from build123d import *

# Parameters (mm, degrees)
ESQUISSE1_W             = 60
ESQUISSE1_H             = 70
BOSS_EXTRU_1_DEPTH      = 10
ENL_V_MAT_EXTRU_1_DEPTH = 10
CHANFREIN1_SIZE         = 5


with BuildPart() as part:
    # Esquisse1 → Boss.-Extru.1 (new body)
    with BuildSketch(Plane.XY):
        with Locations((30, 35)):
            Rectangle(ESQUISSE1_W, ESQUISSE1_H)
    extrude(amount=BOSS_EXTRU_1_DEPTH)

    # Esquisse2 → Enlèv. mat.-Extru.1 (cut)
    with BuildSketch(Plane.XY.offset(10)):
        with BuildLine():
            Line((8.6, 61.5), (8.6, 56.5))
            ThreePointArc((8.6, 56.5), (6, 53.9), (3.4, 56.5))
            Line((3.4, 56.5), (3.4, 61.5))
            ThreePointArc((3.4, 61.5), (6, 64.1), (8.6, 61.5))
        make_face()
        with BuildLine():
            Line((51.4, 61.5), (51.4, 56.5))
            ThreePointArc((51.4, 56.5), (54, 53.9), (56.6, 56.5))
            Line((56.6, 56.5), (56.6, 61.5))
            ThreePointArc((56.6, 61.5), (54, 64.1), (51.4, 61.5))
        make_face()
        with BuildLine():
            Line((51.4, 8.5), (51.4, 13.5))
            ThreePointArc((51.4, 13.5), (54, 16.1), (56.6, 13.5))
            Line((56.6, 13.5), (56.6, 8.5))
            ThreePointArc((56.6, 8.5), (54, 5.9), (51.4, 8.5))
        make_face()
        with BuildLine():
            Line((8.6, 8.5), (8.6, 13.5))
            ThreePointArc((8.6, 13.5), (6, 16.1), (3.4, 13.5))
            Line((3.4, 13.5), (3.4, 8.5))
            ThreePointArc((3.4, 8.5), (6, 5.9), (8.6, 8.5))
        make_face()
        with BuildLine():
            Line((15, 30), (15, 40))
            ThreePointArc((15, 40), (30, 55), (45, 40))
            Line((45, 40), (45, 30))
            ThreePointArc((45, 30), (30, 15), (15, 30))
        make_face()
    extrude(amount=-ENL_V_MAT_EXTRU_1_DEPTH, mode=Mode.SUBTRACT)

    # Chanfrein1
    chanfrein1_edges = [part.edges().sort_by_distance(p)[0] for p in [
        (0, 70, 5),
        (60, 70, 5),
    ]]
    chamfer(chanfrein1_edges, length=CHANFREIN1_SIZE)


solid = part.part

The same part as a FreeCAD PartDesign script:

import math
import FreeCAD as App
import Part
import Sketcher
from FreeCAD import Vector


def edges_at(feature, points):
    """Names of the edges that pass closest to the given points."""
    edges = feature.Shape.Edges
    near = lambda p: min(range(len(edges)), key=lambda i: edges[i].distToShape(Part.Vertex(*p))[0])
    return sorted({f"Edge{near(p) + 1}" for p in points})

doc = App.newDocument("Part")
body = doc.addObject("PartDesign::Body", "Body")

# Sketch on XY plane
sketch1 = doc.addObject("Sketcher::SketchObject", "Sketch")
body.addObject(sketch1)
sketch1.AttachmentSupport = (doc.XY_Plane, [""])
sketch1.MapMode = "FlatFace"
sketch1.addGeometry([
    Part.LineSegment(Vector(0, 70, 0), Vector(0, 0, 0)),
    Part.LineSegment(Vector(0, 0, 0), Vector(60, 0, 0)),
    Part.LineSegment(Vector(60, 0, 0), Vector(60, 70, 0)),
    Part.LineSegment(Vector(60, 70, 0), Vector(0, 70, 0)),
], False)
sketch1.addConstraint([
    Sketcher.Constraint("Coincident", 0, 2, 1, 1),
    Sketcher.Constraint("Coincident", 1, 2, 2, 1),
    Sketcher.Constraint("Coincident", 2, 2, 3, 1),
    Sketcher.Constraint("Coincident", 3, 2, 0, 1),
    Sketcher.Constraint("Vertical", 0),
    Sketcher.Constraint("Horizontal", 1),
    Sketcher.Constraint("Vertical", 2),
    Sketcher.Constraint("Horizontal", 3),
    Sketcher.Constraint("Coincident", 0, 2, -1, 1),
    Sketcher.Constraint("DistanceX", 1, 1, 1, 2, 60.0),
    Sketcher.Constraint("DistanceY", 0, 2, 0, 1, 70.0),
])
pad1 = doc.addObject("PartDesign::Pad", "Pad")
body.addObject(pad1)
pad1.Profile = sketch1
pad1.Length = 10

# Sketch on XY plane
sketch2 = doc.addObject("Sketcher::SketchObject", "Sketch001")
body.addObject(sketch2)
sketch2.AttachmentSupport = (doc.XY_Plane, [""])
sketch2.MapMode = "FlatFace"
sketch2.AttachmentOffset = App.Placement(Vector(0, 0, 10), App.Rotation())
sketch2.addGeometry([
    Part.LineSegment(Vector(8.6, 56.5, 0), Vector(8.6, 61.5, 0)),  # 0
    Part.ArcOfCircle(Part.Circle(Vector(6, 61.5, 0), Vector(0, 0, 1), 2.6), math.radians(0), math.radians(180)),  # 1
    Part.LineSegment(Vector(3.4, 61.5, 0), Vector(3.4, 56.5, 0)),  # 2
    Part.ArcOfCircle(Part.Circle(Vector(6, 56.5, 0), Vector(0, 0, 1), 2.6), math.radians(180), math.radians(360)),  # 3
    Part.LineSegment(Vector(51.4, 61.5, 0), Vector(51.4, 56.5, 0)),  # 4
    Part.ArcOfCircle(Part.Circle(Vector(54, 56.5, 0), Vector(0, 0, 1), 2.6), math.radians(180), math.radians(360)),  # 5
    Part.LineSegment(Vector(56.6, 56.5, 0), Vector(56.6, 61.5, 0)),  # 6
    Part.ArcOfCircle(Part.Circle(Vector(54, 61.5, 0), Vector(0, 0, 1), 2.6), math.radians(0), math.radians(180)),  # 7
    Part.LineSegment(Vector(51.4, 13.5, 0), Vector(51.4, 8.5, 0)),  # 8
    Part.ArcOfCircle(Part.Circle(Vector(54, 8.5, 0), Vector(0, 0, 1), 2.6), math.radians(180), math.radians(360)),  # 9
    Part.LineSegment(Vector(56.6, 8.5, 0), Vector(56.6, 13.5, 0)),  # 10
    Part.ArcOfCircle(Part.Circle(Vector(54, 13.5, 0), Vector(0, 0, 1), 2.6), math.radians(0), math.radians(180)),  # 11
    Part.LineSegment(Vector(8.6, 8.5, 0), Vector(8.6, 13.5, 0)),  # 12
    Part.ArcOfCircle(Part.Circle(Vector(6, 13.5, 0), Vector(0, 0, 1), 2.6), math.radians(0), math.radians(180)),  # 13
    Part.LineSegment(Vector(3.4, 13.5, 0), Vector(3.4, 8.5, 0)),  # 14
    Part.ArcOfCircle(Part.Circle(Vector(6, 8.5, 0), Vector(0, 0, 1), 2.6), math.radians(180), math.radians(360)),  # 15
    Part.LineSegment(Vector(15, 40, 0), Vector(15, 30, 0)),  # 16
    Part.ArcOfCircle(Part.Circle(Vector(30, 30, 0), Vector(0, 0, 1), 15), math.radians(180), math.radians(360)),  # 17
    Part.LineSegment(Vector(45, 30, 0), Vector(45, 40, 0)),  # 18
    Part.ArcOfCircle(Part.Circle(Vector(30, 40, 0), Vector(0, 0, 1), 15), math.radians(0), math.radians(180)),  # 19
], False)
sketch2.addConstraint([
    Sketcher.Constraint("Tangent", 0, 2, 1, 1),
    Sketcher.Constraint("Tangent", 1, 2, 2, 1),
    Sketcher.Constraint("Tangent", 2, 2, 3, 1),
    Sketcher.Constraint("Tangent", 3, 2, 0, 1),
    Sketcher.Constraint("Tangent", 4, 2, 5, 1),
    Sketcher.Constraint("Tangent", 5, 2, 6, 1),
    Sketcher.Constraint("Tangent", 6, 2, 7, 1),
    Sketcher.Constraint("Tangent", 7, 2, 4, 1),
    Sketcher.Constraint("Tangent", 8, 2, 9, 1),
    Sketcher.Constraint("Tangent", 9, 2, 10, 1),
    Sketcher.Constraint("Tangent", 10, 2, 11, 1),
    Sketcher.Constraint("Tangent", 11, 2, 8, 1),
    Sketcher.Constraint("Tangent", 12, 2, 13, 1),
    Sketcher.Constraint("Tangent", 13, 2, 14, 1),
    Sketcher.Constraint("Tangent", 14, 2, 15, 1),
    Sketcher.Constraint("Tangent", 15, 2, 12, 1),
    Sketcher.Constraint("Tangent", 16, 2, 17, 1),
    Sketcher.Constraint("Tangent", 17, 2, 18, 1),
    Sketcher.Constraint("Tangent", 18, 2, 19, 1),
    Sketcher.Constraint("Tangent", 19, 2, 16, 1),
    Sketcher.Constraint("Vertical", 0),
    Sketcher.Constraint("Vertical", 2),
    Sketcher.Constraint("Vertical", 4),
    Sketcher.Constraint("Vertical", 6),
    Sketcher.Constraint("Vertical", 8),
    Sketcher.Constraint("Vertical", 10),
    Sketcher.Constraint("Vertical", 12),
    Sketcher.Constraint("Vertical", 14),
    Sketcher.Constraint("Vertical", 16),
    Sketcher.Constraint("Vertical", 18),
    Sketcher.Constraint("Equal", 3, 5),
    Sketcher.Constraint("Equal", 7, 9),
    Sketcher.Constraint("Equal", 11, 13),
    Sketcher.Constraint("Horizontal", 3, 3, 5, 3),
    Sketcher.Constraint("Horizontal", 1, 3, 7, 3),
    Sketcher.Constraint("Horizontal", 11, 3, 13, 3),
    Sketcher.Constraint("Horizontal", 9, 3, 15, 3),
    Sketcher.Constraint("Vertical", 7, 3, 9, 3),
    Sketcher.Constraint("Vertical", 3, 3, 13, 3),
    Sketcher.Constraint("Equal", 6, 8),
    Sketcher.Constraint("Radius", 17, 15.0),
    Sketcher.Constraint("Radius", 1, 2.6),
    Sketcher.Constraint("DistanceY", 0, 1, 0, 2, 5.0),
    Sketcher.Constraint("DistanceY", 16, 2, 16, 1, 10.0),
    Sketcher.Constraint("DistanceX", -1, 1, 1, 3, 6.0),
    Sketcher.Constraint("DistanceX", -1, 1, 5, 3, 54.0),
    Sketcher.Constraint("DistanceX", -1, 1, 17, 3, 30.0),
    Sketcher.Constraint("DistanceY", -1, 1, 17, 3, 30.0),
    Sketcher.Constraint("DistanceY", 9, 3, 5, 3, 48.0),
    Sketcher.Constraint("DistanceY", -1, 1, 1, 3, 61.5),
])
pocket1 = doc.addObject("PartDesign::Pocket", "Pocket")
body.addObject(pocket1)
pocket1.Profile = sketch2
pocket1.Length = 10
doc.recompute()

chamfer = doc.addObject("PartDesign::Chamfer", "Chamfer")
body.addObject(chamfer)
chamfer.Base = (pocket1, edges_at(pocket1, [(0, 70, 5), (60, 70, 5)]))
chamfer.Size = 5

doc.recompute()
